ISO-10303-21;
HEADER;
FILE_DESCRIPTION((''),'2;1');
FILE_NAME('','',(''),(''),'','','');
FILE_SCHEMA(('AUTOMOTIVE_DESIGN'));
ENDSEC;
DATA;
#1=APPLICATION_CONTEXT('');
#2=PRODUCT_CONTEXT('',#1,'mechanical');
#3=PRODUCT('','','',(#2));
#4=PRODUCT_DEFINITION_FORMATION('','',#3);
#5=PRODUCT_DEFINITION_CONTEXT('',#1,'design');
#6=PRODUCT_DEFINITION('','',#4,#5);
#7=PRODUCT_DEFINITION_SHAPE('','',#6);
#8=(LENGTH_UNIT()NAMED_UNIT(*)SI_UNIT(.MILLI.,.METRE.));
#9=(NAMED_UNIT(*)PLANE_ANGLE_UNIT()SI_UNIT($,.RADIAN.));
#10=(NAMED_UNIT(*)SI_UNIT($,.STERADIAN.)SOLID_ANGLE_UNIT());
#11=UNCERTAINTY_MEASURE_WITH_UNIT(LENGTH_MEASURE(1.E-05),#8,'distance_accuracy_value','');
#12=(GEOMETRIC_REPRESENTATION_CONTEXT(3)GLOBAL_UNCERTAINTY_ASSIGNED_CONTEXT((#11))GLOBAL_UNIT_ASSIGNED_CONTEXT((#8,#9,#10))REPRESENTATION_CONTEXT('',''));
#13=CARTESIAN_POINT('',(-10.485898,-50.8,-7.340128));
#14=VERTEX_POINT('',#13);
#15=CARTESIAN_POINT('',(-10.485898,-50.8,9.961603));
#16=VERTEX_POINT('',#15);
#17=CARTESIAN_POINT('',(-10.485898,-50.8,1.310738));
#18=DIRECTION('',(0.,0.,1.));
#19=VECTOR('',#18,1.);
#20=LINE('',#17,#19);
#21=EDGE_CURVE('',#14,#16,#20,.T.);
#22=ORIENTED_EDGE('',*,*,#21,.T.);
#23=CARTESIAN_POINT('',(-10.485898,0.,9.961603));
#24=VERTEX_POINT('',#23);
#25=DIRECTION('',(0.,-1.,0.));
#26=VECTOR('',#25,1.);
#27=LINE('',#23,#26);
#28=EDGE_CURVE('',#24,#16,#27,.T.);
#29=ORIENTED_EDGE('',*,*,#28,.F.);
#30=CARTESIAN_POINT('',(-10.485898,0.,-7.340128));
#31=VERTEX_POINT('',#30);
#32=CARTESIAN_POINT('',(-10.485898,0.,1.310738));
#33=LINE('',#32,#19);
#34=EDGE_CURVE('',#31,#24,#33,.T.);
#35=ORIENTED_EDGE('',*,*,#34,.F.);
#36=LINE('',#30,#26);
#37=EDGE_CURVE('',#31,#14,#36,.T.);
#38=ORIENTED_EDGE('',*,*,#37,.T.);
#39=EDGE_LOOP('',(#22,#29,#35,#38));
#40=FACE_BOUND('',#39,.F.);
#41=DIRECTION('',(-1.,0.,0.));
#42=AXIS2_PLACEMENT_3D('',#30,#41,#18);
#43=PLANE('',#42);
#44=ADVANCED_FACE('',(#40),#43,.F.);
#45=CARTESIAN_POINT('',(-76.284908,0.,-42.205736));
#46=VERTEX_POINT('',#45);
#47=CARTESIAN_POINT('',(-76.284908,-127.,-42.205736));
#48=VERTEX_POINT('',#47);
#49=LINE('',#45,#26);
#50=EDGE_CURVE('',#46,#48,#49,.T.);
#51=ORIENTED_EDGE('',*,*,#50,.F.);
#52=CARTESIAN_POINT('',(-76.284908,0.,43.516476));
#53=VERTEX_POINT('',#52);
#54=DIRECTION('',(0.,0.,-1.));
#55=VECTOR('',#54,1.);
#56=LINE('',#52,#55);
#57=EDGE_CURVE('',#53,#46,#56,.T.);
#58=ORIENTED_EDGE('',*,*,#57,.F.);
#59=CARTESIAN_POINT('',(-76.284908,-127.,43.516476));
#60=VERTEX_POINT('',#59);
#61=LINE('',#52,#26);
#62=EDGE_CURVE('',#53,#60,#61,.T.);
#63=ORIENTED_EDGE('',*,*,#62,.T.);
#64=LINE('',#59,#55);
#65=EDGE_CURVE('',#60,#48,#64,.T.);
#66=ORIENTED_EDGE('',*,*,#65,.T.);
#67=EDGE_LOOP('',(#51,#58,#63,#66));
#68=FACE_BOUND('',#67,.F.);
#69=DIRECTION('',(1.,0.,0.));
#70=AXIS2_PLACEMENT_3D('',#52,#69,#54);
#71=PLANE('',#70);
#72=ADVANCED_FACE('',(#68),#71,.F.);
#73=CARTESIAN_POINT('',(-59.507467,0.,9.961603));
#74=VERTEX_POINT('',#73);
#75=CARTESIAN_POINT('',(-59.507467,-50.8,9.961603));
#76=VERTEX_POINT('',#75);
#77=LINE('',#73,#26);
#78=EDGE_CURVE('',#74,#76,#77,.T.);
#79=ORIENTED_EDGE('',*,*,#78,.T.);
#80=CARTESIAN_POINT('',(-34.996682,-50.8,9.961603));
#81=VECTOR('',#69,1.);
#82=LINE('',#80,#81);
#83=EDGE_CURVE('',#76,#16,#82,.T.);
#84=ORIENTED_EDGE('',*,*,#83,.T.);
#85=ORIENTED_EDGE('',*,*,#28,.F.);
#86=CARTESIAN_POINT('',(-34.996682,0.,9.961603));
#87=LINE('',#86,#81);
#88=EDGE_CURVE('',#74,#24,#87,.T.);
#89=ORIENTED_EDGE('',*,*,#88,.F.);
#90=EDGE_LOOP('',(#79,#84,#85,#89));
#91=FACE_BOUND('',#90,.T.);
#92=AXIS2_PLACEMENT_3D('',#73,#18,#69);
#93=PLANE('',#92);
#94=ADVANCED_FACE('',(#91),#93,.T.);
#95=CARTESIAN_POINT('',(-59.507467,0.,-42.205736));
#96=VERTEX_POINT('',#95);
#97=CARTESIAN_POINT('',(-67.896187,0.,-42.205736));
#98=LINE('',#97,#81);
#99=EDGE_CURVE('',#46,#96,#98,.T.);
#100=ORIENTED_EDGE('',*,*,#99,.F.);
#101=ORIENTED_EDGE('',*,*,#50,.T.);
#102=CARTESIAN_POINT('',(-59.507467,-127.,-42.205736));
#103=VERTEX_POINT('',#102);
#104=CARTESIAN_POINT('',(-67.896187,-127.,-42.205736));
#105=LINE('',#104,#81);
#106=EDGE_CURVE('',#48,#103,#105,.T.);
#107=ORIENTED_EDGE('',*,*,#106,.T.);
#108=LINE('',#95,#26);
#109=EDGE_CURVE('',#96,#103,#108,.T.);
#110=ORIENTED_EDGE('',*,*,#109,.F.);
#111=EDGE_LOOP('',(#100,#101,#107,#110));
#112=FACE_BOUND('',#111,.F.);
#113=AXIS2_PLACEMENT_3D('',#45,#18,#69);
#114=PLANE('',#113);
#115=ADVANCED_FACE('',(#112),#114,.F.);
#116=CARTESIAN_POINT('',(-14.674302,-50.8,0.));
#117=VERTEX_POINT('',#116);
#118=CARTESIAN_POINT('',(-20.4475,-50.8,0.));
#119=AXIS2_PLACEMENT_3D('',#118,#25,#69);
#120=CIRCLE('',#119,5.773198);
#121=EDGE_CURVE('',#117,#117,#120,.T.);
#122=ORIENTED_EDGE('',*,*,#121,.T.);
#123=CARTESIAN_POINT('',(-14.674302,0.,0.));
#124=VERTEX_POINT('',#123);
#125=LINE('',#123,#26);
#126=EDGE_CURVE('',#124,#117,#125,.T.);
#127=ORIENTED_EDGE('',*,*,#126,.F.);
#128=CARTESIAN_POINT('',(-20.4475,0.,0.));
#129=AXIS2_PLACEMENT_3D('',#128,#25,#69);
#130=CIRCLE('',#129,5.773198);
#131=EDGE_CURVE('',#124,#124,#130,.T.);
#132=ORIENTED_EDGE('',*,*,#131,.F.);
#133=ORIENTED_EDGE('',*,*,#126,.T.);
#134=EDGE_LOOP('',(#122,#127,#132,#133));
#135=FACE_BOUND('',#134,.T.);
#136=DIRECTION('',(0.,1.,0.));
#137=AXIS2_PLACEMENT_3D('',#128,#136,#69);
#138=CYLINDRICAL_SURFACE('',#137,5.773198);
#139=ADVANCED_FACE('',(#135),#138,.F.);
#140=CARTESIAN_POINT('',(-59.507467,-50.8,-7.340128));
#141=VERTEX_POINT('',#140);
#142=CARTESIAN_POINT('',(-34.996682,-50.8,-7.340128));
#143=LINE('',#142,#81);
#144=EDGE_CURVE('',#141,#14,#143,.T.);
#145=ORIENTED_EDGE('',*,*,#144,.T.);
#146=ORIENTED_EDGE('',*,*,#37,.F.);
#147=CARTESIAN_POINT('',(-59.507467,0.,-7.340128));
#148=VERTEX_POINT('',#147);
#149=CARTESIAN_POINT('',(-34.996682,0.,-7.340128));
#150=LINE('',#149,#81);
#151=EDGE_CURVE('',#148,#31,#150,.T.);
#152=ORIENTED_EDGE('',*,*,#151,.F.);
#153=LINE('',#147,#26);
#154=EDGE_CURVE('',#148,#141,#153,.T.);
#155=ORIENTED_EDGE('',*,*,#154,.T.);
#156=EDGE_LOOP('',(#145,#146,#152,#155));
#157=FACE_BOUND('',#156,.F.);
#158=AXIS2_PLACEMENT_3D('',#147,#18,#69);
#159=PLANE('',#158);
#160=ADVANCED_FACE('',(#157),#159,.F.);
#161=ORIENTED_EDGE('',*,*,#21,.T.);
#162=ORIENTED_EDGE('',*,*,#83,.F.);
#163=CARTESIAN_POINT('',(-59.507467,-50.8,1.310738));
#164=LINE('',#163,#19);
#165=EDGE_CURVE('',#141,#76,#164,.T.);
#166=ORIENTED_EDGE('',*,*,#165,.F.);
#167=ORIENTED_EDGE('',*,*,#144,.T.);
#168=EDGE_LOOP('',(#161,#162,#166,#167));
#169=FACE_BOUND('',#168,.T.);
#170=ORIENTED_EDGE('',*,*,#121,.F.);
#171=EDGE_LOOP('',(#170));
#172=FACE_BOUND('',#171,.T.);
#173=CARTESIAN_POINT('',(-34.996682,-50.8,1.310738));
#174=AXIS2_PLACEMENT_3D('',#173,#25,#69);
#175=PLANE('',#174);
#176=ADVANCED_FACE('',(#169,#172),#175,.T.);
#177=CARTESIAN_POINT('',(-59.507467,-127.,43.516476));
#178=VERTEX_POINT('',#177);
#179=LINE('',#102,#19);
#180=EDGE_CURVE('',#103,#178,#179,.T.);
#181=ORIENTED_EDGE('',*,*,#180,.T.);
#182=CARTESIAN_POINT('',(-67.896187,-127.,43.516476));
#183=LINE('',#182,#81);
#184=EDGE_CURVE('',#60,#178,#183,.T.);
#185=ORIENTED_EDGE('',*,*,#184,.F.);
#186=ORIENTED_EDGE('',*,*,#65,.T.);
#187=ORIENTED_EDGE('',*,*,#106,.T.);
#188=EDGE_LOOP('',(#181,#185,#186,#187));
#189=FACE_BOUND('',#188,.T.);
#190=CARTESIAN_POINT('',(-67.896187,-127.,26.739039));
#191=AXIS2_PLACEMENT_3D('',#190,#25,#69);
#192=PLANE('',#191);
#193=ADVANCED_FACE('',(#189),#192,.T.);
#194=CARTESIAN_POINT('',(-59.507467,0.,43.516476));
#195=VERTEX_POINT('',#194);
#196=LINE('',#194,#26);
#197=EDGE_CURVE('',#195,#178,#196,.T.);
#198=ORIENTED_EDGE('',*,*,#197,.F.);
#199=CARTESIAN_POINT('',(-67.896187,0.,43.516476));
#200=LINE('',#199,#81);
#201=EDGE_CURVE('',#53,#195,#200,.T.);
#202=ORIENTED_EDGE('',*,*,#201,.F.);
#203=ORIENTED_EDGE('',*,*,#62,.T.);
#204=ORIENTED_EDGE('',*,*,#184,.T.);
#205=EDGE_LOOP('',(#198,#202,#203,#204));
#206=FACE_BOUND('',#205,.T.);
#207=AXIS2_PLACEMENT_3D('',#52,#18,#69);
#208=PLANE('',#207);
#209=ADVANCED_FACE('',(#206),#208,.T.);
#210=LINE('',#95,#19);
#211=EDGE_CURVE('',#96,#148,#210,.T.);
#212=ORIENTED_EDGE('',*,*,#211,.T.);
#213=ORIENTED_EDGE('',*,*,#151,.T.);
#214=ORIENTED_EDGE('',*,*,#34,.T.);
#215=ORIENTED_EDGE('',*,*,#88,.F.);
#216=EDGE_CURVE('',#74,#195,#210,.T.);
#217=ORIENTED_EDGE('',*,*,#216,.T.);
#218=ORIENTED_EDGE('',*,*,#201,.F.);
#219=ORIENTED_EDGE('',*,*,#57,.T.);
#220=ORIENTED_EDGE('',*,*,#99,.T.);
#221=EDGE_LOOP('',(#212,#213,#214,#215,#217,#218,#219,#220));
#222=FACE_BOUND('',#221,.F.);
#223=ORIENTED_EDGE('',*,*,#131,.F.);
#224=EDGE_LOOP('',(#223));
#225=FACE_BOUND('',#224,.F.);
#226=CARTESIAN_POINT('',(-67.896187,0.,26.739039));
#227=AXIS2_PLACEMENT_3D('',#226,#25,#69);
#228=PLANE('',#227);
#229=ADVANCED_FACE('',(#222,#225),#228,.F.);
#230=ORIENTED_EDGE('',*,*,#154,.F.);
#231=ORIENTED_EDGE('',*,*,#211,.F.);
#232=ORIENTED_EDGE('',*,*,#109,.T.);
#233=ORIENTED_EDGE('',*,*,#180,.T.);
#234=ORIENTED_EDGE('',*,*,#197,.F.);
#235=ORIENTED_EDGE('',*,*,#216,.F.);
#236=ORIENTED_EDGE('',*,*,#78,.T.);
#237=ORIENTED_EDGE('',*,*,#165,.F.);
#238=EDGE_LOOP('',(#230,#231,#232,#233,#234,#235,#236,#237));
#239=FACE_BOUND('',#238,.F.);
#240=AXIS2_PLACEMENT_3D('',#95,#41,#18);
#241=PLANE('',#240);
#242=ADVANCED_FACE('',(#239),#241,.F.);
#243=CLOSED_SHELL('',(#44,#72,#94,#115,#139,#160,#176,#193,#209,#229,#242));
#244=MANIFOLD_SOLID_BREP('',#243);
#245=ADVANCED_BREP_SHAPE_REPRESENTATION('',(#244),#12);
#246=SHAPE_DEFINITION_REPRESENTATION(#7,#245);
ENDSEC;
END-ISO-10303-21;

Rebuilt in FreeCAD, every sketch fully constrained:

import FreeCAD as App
import Part
import Sketcher


def add_polygon(sketch, points):
    """Adds a closed chain of lines whose ends are joined by coincident constraints."""
    first, n = sketch.GeometryCount, len(points)
    for a, b in zip(points, points[1:] + points[:1]):
        sketch.addGeometry(Part.LineSegment(App.Vector(*a, 0), App.Vector(*b, 0)), False)
    for i in range(n):
        sketch.addConstraint(Sketcher.Constraint("Coincident", first + i, 2, first + (i + 1) % n, 1))

doc = App.newDocument("Part")
params = doc.addObject("Spreadsheet::Sheet", "Params")
for row, (alias, value) in enumerate([
    ("pad1_length", "5 in"),
    ("pad2_length", "2 in"),
], start=1):
    params.set(f"A{row}", alias)
    params.set(f"B{row}", "=" + value)
    params.setAlias(f"B{row}", alias)

body = doc.addObject("PartDesign::Body", "Body")

# Sketch on XZ plane
sketch1 = body.newObject("Sketcher::SketchObject", "Sketch")
sketch1.AttachmentSupport = (doc.getObject("XZ_Plane"), [""])
sketch1.MapMode = "FlatFace"
add_polygon(sketch1, [(-76.284908, 43.516476), (-76.284908, -42.205736), (-59.507467, -42.205736), (-59.507467, 43.516476)])  # lines 0-3
sketch1.addConstraint([
    Sketcher.Constraint("Vertical", 0),
    Sketcher.Constraint("Horizontal", 1),
    Sketcher.Constraint("Vertical", 2),
    Sketcher.Constraint("Horizontal", 3),
    Sketcher.Constraint("DistanceX", 1, 1, 1, 2, 16.777441),
    Sketcher.Constraint("DistanceY", 0, 2, 0, 1, 85.722212),
    Sketcher.Constraint("DistanceX", 0, 2, -1, 1, 76.284908),
    Sketcher.Constraint("DistanceY", 0, 2, -1, 1, 42.205736),
])
pad1 = body.newObject("PartDesign::Pad", "Pad")
pad1.Profile = sketch1
pad1.setExpression("Length", "Params.pad1_length")

# Sketch on XZ plane
sketch2 = body.newObject("Sketcher::SketchObject", "Sketch001")
sketch2.AttachmentSupport = (doc.getObject("XZ_Plane"), [""])
sketch2.MapMode = "FlatFace"
add_polygon(sketch2, [(-59.507467, 9.961603), (-59.507467, -7.340128), (-10.485898, -7.340128), (-10.485898, 9.961603)])  # lines 0-3
sketch2.addGeometry(Part.Circle(App.Vector(-20.4475, 0, 0), App.Vector(0, 0, 1), 5.773198), False)  # 4
sketch2.addConstraint([
    Sketcher.Constraint("Vertical", 0),
    Sketcher.Constraint("Horizontal", 1),
    Sketcher.Constraint("Vertical", 2),
    Sketcher.Constraint("Horizontal", 3),
    Sketcher.Constraint("PointOnObject", 4, 3, -1),
    Sketcher.Constraint("Diameter", 4, 11.546396),
    Sketcher.Constraint("DistanceX", 1, 1, 1, 2, 49.021569),
    Sketcher.Constraint("DistanceY", 0, 2, 0, 1, 17.301731),
    Sketcher.Constraint("DistanceX", 4, 3, -1, 1, 20.4475),
    Sketcher.Constraint("DistanceY", 0, 2, -1, 1, 7.340128),
    Sketcher.Constraint("DistanceX", 0, 2, -1, 1, 59.507467),
])
pad2 = body.newObject("PartDesign::Pad", "Pad001")
pad2.Profile = sketch2
pad2.setExpression("Length", "Params.pad2_length")

doc.recompute()
